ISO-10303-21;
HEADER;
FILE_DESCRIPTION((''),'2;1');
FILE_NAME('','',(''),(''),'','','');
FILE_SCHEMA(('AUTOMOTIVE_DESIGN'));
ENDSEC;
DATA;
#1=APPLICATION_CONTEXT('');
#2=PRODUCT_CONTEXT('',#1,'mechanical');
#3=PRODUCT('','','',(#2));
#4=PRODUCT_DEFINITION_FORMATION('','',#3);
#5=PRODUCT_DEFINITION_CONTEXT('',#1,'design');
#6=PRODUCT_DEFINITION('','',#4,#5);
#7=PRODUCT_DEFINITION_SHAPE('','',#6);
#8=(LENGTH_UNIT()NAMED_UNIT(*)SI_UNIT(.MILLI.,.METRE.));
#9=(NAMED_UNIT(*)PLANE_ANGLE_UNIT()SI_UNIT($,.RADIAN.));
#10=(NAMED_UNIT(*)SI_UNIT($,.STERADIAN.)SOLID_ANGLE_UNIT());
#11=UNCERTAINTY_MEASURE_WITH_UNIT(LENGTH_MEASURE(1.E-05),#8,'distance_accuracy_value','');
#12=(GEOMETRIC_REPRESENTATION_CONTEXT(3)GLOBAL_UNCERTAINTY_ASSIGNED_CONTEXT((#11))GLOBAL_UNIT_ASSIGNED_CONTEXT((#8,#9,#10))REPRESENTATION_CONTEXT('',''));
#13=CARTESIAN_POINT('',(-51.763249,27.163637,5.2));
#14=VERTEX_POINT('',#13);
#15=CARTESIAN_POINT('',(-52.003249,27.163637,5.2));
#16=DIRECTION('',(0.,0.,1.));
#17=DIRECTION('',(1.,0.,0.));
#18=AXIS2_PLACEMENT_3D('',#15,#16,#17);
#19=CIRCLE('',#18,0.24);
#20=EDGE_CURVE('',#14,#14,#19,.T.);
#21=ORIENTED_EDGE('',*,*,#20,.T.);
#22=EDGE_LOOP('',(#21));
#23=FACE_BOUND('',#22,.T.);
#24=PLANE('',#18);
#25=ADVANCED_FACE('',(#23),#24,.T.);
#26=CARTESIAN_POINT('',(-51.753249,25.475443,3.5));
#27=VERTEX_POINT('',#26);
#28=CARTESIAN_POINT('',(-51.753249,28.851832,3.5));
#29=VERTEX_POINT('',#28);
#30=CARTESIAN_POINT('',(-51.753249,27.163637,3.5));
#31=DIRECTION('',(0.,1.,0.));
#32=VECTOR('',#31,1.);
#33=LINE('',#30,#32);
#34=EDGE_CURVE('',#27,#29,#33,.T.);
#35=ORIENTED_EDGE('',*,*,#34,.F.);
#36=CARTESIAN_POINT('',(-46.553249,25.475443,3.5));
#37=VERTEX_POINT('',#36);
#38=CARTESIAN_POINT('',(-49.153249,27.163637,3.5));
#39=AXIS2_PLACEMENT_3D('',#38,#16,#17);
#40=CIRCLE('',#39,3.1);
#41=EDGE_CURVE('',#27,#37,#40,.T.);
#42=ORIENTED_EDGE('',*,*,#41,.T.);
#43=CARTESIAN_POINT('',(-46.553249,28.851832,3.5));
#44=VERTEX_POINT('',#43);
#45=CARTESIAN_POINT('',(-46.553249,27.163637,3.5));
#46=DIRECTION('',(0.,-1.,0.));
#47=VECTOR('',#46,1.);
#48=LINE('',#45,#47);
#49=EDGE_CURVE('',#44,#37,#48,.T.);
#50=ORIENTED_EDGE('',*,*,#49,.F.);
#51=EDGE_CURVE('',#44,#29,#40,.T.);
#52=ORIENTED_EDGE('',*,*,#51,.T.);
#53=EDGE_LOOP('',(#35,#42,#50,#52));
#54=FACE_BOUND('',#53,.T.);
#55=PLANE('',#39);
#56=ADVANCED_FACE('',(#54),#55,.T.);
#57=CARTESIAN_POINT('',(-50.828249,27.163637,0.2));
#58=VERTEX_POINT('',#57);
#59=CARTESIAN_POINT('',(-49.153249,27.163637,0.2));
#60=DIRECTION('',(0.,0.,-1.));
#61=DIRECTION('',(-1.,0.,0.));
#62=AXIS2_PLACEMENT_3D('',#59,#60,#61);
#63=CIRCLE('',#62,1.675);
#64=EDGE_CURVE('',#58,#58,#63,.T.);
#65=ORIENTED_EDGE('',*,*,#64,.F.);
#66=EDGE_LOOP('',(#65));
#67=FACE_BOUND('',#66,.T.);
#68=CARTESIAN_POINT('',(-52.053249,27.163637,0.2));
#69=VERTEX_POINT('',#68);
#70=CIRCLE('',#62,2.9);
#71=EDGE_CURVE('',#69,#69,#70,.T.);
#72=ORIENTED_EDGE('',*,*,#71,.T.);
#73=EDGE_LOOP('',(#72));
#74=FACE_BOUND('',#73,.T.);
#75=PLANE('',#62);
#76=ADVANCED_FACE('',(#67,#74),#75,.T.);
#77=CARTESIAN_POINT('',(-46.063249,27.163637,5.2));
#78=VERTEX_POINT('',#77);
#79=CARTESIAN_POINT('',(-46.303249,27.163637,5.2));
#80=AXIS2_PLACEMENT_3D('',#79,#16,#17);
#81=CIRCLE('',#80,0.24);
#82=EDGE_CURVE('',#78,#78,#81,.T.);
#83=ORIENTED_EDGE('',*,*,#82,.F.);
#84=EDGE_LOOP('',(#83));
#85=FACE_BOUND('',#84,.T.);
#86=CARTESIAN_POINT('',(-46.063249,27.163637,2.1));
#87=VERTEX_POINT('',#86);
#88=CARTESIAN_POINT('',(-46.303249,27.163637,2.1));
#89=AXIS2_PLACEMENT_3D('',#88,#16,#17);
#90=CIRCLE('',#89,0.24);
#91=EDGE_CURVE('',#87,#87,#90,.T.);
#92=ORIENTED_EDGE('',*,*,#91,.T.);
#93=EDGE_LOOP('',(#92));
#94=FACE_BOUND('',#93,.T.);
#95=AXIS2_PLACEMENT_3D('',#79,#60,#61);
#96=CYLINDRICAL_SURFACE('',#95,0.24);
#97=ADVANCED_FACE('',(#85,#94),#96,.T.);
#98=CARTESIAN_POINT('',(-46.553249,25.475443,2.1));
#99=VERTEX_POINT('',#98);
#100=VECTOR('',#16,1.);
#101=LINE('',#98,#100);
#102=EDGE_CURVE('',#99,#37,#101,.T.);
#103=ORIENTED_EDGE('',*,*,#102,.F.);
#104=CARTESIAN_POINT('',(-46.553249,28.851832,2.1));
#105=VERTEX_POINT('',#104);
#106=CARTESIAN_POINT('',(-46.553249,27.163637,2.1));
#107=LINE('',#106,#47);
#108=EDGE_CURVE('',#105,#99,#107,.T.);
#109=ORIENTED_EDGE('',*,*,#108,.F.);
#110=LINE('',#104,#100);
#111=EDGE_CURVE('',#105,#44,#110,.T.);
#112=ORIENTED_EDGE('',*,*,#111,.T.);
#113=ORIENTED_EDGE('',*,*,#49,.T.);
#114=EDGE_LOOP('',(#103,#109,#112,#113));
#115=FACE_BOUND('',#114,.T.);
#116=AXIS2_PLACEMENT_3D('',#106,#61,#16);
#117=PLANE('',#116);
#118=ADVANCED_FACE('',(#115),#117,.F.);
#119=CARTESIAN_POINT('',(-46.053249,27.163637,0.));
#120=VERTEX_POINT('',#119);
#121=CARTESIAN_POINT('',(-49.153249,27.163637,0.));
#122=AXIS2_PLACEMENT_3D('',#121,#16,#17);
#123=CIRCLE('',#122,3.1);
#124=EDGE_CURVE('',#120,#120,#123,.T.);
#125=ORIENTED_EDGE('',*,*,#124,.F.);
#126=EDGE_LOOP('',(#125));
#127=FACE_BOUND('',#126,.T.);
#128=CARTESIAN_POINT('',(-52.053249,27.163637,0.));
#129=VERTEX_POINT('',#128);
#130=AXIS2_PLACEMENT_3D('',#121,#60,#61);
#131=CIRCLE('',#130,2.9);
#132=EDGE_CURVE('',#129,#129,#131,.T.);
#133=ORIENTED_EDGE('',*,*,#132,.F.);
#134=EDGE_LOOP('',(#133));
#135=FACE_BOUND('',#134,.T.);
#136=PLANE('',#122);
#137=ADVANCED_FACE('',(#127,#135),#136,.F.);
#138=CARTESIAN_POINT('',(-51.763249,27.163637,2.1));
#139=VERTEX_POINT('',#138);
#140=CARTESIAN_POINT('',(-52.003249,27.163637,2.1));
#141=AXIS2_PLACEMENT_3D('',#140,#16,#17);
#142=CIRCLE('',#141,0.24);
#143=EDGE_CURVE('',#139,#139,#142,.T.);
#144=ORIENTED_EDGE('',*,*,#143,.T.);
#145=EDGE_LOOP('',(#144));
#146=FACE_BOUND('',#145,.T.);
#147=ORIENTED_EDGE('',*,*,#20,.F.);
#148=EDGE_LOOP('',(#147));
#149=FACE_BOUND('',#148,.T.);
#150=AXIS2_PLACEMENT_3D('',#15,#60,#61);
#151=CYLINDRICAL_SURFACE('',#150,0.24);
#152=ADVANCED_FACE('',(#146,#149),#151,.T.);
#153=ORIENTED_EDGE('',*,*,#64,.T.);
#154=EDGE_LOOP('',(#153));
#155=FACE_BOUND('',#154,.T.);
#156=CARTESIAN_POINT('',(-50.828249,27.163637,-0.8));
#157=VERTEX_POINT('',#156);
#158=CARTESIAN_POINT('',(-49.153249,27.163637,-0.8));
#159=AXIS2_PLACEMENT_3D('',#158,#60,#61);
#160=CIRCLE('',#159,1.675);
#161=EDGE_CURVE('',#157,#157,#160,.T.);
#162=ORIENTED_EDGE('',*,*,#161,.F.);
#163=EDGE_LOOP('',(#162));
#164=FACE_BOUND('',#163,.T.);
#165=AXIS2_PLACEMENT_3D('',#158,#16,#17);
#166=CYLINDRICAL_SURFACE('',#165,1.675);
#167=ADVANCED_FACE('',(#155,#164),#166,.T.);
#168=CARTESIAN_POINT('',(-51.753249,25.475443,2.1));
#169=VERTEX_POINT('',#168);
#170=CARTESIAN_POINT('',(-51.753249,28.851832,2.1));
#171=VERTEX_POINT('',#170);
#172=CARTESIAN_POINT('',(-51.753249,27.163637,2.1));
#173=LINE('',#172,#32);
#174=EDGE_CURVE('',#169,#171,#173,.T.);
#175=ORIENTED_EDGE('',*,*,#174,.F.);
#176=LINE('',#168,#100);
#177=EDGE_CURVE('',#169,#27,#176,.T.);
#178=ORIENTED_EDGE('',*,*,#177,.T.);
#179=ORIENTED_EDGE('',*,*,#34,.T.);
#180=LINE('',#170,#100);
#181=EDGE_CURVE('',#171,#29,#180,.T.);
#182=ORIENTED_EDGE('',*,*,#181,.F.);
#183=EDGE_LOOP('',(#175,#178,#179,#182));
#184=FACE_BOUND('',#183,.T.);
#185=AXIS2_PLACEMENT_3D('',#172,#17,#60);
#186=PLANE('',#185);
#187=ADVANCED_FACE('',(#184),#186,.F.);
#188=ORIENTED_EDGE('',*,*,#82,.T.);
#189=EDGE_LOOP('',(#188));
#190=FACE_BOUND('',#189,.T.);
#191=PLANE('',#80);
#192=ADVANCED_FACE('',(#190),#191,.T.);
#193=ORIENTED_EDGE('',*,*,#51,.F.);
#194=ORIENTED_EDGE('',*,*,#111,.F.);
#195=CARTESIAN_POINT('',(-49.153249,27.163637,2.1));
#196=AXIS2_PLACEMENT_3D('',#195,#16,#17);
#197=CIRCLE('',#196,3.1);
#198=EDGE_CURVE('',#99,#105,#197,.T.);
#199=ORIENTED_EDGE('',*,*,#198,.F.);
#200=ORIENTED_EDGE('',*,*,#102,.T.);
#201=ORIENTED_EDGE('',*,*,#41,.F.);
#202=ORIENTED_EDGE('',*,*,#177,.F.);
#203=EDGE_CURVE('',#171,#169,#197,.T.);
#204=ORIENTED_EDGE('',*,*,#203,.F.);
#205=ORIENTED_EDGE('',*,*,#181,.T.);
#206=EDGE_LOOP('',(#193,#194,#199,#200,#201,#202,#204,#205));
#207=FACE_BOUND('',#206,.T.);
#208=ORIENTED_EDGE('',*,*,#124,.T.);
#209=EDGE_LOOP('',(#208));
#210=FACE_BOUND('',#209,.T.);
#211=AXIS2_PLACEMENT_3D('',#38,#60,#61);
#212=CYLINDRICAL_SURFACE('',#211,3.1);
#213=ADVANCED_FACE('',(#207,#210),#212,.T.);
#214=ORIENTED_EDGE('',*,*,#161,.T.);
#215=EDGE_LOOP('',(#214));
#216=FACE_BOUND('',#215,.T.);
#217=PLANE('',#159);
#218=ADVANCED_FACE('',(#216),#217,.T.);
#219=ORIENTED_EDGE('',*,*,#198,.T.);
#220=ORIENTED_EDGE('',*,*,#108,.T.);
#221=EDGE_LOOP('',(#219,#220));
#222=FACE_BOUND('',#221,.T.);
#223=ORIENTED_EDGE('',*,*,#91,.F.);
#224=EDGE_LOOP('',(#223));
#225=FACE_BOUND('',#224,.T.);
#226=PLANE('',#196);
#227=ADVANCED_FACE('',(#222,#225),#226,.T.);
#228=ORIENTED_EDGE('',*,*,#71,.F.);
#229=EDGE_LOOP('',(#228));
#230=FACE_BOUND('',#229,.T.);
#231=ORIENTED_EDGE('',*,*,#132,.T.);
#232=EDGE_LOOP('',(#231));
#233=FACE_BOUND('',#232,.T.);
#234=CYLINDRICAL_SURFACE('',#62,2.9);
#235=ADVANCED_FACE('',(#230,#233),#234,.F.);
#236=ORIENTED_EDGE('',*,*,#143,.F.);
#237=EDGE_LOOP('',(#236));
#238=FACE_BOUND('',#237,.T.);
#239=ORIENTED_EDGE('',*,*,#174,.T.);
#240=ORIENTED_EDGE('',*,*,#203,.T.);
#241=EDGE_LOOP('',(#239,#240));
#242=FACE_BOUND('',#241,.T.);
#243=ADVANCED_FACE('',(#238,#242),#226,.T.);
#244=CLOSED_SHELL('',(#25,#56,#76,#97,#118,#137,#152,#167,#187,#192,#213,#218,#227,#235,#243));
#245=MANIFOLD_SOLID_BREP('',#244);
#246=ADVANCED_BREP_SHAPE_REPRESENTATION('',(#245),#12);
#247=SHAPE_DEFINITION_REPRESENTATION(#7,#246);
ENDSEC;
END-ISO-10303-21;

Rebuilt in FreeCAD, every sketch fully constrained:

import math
import FreeCAD as App
import Part
import Sketcher

V = App.Vector

doc = App.newDocument("Part")
params = doc.addObject("Spreadsheet::Sheet", "Params")
for row, (alias, value) in enumerate([
    ("sketch1_diameter", "6.2 mm"),
    ("pad1_length", "3.5 mm"),
    ("sketch2_radius", "3.1 mm"),
    ("sketch2_width", "2.6 mm"),
    ("pocket1_length", "1.4 mm"),
    ("sketch3_diameter", "0.48 mm"),
    ("pad2_length", "3.1 mm"),
    ("sketch4_diameter", "0.48 mm"),
    ("pad3_length", "3.1 mm"),
    ("sketch5_diameter", "5.8 mm"),
    ("pocket2_length", "0.2 mm"),
    ("sketch6_diameter", "3.35 mm"),
    ("pad4_length", "1 mm"),
], start=1):
    params.set(f"A{row}", alias)
    params.set(f"B{row}", "=" + value)
    params.setAlias(f"B{row}", alias)

body = doc.addObject("PartDesign::Body", "Body")

sketch1 = body.newObject("Sketcher::SketchObject", "Sketch")
sketch1.AttachmentSupport = (doc.getObject("XY_Plane"), [""])
sketch1.MapMode = "FlatFace"
sketch1.addGeometry(Part.Circle(V(-49.2, 27.2, 0), V(0, 0, 1), 3.1), False)
sketch1.addConstraint([
    Sketcher.Constraint("Diameter", 0, 6.2),
    Sketcher.Constraint("DistanceX", 0, 3, -1, 1, 49.153249),
    Sketcher.Constraint("DistanceY", -1, 1, 0, 3, 27.163637),
])
sketch1.setExpression("Constraints[0]", "Params.sketch1_diameter")
pad1 = body.newObject("PartDesign::Pad", "Pad")
pad1.Profile = sketch1
pad1.setExpression("Length", "Params.pad1_length")

sketch2 = body.newObject("Sketcher::SketchObject", "Sketch001")
sketch2.AttachmentSupport = (doc.getObject("XY_Plane"), [""])
sketch2.MapMode = "FlatFace"
sketch2.AttachmentOffset = App.Placement(V(0, 0, 2.1), App.Rotation())
sketch2.addGeometry([
    Part.ArcOfCircle(Part.Circle(V(-49.2, 27.2, 0), V(0, 0, 1), 3.1), math.radians(147), math.radians(213)),
    Part.LineSegment(V(-51.8, 25.5, 0), V(-51.8, 28.9, 0)),
    Part.ArcOfCircle(Part.Circle(V(-49.2, 27.2, 0), V(0, 0, 1), 3.1), math.radians(-33), math.radians(33)),
    Part.LineSegment(V(-46.6, 28.9, 0), V(-46.6, 25.5, 0)),
], False)
sketch2.addConstraint([
    Sketcher.Constraint("Coincident", 0, 1, 1, 2),
    Sketcher.Constraint("Coincident", 1, 1, 0, 2),
    Sketcher.Constraint("Coincident", 2, 1, 3, 2),
    Sketcher.Constraint("Coincident", 3, 1, 2, 2),
    Sketcher.Constraint("Vertical", 1),
    Sketcher.Constraint("Vertical", 3),
    Sketcher.Constraint("Coincident", 2, 3, 0, 3),
    Sketcher.Constraint("Equal", 0, 2),
    Sketcher.Constraint("Horizontal", 1, 1, 2, 1),
    Sketcher.Constraint("Radius", 0, 3.1),
    Sketcher.Constraint("DistanceX", 0, 1, 0, 3, 2.6),
    Sketcher.Constraint("DistanceX", 0, 3, -1, 1, 49.153249),
    Sketcher.Constraint("DistanceY", -1, 1, 0, 1, 28.851832),
])
sketch2.setExpression("Constraints[9]", "Params.sketch2_radius")
sketch2.setExpression("Constraints[10]", "Params.sketch2_width")
pocket1 = body.newObject("PartDesign::Pocket", "Pocket")
pocket1.Profile = sketch2
pocket1.setExpression("Length", "Params.pocket1_length")
pocket1.Reversed = True

sketch3 = body.newObject("Sketcher::SketchObject", "Sketch002")
sketch3.AttachmentSupport = (doc.getObject("XY_Plane"), [""])
sketch3.MapMode = "FlatFace"
sketch3.AttachmentOffset = App.Placement(V(0, 0, 2.1), App.Rotation())
sketch3.addGeometry(Part.Circle(V(-46.3, 27.16, 0), V(0, 0, 1), 0.24), False)
sketch3.addConstraint([
    Sketcher.Constraint("Diameter", 0, 0.48),
    Sketcher.Constraint("DistanceX", 0, 3, -1, 1, 46.303249),
    Sketcher.Constraint("DistanceY", -1, 1, 0, 3, 27.163637),
])
sketch3.setExpression("Constraints[0]", "Params.sketch3_diameter")
pad2 = body.newObject("PartDesign::Pad", "Pad001")
pad2.Profile = sketch3
pad2.setExpression("Length", "Params.pad2_length")

sketch4 = body.newObject("Sketcher::SketchObject", "Sketch003")
sketch4.AttachmentSupport = (doc.getObject("XY_Plane"), [""])
sketch4.MapMode = "FlatFace"
sketch4.AttachmentOffset = App.Placement(V(0, 0, 2.1), App.Rotation())
sketch4.addGeometry(Part.Circle(V(-52, 27.16, 0), V(0, 0, 1), 0.24), False)
sketch4.addConstraint([
    Sketcher.Constraint("Diameter", 0, 0.48),
    Sketcher.Constraint("DistanceX", 0, 3, -1, 1, 52.003249),
    Sketcher.Constraint("DistanceY", -1, 1, 0, 3, 27.163637),
])
sketch4.setExpression("Constraints[0]", "Params.sketch4_diameter")
pad3 = body.newObject("PartDesign::Pad", "Pad002")
pad3.Profile = sketch4
pad3.setExpression("Length", "Params.pad3_length")

sketch5 = body.newObject("Sketcher::SketchObject", "Sketch004")
sketch5.AttachmentSupport = (doc.getObject("XY_Plane"), [""])
sketch5.MapMode = "FlatFace"
sketch5.addGeometry(Part.Circle(V(-49.2, 27.2, 0), V(0, 0, 1), 2.9), False)
sketch5.addConstraint([
    Sketcher.Constraint("Diameter", 0, 5.8),
    Sketcher.Constraint("DistanceX", 0, 3, -1, 1, 49.153249),
    Sketcher.Constraint("DistanceY", -1, 1, 0, 3, 27.163637),
])
sketch5.setExpression("Constraints[0]", "Params.sketch5_diameter")
pocket2 = body.newObject("PartDesign::Pocket", "Pocket001")
pocket2.Profile = sketch5
pocket2.setExpression("Length", "Params.pocket2_length")
pocket2.Reversed = True

sketch6 = body.newObject("Sketcher::SketchObject", "Sketch005")
sketch6.AttachmentSupport = (doc.getObject("XY_Plane"), [""])
sketch6.MapMode = "FlatFace"
sketch6.AttachmentOffset = App.Placement(V(0, 0, 0.2), App.Rotation())
sketch6.addGeometry(Part.Circle(V(-49.2, 27.2, 0), V(0, 0, 1), 1.7), False)
sketch6.addConstraint([
    Sketcher.Constraint("Diameter", 0, 3.35),
    Sketcher.Constraint("DistanceX", 0, 3, -1, 1, 49.153249),
    Sketcher.Constraint("DistanceY", -1, 1, 0, 3, 27.163637),
])
sketch6.setExpression("Constraints[0]", "Params.sketch6_diameter")
pad4 = body.newObject("PartDesign::Pad", "Pad003")
pad4.Profile = sketch6
pad4.setExpression("Length", "Params.pad4_length")
pad4.Reversed = True

doc.recompute()
